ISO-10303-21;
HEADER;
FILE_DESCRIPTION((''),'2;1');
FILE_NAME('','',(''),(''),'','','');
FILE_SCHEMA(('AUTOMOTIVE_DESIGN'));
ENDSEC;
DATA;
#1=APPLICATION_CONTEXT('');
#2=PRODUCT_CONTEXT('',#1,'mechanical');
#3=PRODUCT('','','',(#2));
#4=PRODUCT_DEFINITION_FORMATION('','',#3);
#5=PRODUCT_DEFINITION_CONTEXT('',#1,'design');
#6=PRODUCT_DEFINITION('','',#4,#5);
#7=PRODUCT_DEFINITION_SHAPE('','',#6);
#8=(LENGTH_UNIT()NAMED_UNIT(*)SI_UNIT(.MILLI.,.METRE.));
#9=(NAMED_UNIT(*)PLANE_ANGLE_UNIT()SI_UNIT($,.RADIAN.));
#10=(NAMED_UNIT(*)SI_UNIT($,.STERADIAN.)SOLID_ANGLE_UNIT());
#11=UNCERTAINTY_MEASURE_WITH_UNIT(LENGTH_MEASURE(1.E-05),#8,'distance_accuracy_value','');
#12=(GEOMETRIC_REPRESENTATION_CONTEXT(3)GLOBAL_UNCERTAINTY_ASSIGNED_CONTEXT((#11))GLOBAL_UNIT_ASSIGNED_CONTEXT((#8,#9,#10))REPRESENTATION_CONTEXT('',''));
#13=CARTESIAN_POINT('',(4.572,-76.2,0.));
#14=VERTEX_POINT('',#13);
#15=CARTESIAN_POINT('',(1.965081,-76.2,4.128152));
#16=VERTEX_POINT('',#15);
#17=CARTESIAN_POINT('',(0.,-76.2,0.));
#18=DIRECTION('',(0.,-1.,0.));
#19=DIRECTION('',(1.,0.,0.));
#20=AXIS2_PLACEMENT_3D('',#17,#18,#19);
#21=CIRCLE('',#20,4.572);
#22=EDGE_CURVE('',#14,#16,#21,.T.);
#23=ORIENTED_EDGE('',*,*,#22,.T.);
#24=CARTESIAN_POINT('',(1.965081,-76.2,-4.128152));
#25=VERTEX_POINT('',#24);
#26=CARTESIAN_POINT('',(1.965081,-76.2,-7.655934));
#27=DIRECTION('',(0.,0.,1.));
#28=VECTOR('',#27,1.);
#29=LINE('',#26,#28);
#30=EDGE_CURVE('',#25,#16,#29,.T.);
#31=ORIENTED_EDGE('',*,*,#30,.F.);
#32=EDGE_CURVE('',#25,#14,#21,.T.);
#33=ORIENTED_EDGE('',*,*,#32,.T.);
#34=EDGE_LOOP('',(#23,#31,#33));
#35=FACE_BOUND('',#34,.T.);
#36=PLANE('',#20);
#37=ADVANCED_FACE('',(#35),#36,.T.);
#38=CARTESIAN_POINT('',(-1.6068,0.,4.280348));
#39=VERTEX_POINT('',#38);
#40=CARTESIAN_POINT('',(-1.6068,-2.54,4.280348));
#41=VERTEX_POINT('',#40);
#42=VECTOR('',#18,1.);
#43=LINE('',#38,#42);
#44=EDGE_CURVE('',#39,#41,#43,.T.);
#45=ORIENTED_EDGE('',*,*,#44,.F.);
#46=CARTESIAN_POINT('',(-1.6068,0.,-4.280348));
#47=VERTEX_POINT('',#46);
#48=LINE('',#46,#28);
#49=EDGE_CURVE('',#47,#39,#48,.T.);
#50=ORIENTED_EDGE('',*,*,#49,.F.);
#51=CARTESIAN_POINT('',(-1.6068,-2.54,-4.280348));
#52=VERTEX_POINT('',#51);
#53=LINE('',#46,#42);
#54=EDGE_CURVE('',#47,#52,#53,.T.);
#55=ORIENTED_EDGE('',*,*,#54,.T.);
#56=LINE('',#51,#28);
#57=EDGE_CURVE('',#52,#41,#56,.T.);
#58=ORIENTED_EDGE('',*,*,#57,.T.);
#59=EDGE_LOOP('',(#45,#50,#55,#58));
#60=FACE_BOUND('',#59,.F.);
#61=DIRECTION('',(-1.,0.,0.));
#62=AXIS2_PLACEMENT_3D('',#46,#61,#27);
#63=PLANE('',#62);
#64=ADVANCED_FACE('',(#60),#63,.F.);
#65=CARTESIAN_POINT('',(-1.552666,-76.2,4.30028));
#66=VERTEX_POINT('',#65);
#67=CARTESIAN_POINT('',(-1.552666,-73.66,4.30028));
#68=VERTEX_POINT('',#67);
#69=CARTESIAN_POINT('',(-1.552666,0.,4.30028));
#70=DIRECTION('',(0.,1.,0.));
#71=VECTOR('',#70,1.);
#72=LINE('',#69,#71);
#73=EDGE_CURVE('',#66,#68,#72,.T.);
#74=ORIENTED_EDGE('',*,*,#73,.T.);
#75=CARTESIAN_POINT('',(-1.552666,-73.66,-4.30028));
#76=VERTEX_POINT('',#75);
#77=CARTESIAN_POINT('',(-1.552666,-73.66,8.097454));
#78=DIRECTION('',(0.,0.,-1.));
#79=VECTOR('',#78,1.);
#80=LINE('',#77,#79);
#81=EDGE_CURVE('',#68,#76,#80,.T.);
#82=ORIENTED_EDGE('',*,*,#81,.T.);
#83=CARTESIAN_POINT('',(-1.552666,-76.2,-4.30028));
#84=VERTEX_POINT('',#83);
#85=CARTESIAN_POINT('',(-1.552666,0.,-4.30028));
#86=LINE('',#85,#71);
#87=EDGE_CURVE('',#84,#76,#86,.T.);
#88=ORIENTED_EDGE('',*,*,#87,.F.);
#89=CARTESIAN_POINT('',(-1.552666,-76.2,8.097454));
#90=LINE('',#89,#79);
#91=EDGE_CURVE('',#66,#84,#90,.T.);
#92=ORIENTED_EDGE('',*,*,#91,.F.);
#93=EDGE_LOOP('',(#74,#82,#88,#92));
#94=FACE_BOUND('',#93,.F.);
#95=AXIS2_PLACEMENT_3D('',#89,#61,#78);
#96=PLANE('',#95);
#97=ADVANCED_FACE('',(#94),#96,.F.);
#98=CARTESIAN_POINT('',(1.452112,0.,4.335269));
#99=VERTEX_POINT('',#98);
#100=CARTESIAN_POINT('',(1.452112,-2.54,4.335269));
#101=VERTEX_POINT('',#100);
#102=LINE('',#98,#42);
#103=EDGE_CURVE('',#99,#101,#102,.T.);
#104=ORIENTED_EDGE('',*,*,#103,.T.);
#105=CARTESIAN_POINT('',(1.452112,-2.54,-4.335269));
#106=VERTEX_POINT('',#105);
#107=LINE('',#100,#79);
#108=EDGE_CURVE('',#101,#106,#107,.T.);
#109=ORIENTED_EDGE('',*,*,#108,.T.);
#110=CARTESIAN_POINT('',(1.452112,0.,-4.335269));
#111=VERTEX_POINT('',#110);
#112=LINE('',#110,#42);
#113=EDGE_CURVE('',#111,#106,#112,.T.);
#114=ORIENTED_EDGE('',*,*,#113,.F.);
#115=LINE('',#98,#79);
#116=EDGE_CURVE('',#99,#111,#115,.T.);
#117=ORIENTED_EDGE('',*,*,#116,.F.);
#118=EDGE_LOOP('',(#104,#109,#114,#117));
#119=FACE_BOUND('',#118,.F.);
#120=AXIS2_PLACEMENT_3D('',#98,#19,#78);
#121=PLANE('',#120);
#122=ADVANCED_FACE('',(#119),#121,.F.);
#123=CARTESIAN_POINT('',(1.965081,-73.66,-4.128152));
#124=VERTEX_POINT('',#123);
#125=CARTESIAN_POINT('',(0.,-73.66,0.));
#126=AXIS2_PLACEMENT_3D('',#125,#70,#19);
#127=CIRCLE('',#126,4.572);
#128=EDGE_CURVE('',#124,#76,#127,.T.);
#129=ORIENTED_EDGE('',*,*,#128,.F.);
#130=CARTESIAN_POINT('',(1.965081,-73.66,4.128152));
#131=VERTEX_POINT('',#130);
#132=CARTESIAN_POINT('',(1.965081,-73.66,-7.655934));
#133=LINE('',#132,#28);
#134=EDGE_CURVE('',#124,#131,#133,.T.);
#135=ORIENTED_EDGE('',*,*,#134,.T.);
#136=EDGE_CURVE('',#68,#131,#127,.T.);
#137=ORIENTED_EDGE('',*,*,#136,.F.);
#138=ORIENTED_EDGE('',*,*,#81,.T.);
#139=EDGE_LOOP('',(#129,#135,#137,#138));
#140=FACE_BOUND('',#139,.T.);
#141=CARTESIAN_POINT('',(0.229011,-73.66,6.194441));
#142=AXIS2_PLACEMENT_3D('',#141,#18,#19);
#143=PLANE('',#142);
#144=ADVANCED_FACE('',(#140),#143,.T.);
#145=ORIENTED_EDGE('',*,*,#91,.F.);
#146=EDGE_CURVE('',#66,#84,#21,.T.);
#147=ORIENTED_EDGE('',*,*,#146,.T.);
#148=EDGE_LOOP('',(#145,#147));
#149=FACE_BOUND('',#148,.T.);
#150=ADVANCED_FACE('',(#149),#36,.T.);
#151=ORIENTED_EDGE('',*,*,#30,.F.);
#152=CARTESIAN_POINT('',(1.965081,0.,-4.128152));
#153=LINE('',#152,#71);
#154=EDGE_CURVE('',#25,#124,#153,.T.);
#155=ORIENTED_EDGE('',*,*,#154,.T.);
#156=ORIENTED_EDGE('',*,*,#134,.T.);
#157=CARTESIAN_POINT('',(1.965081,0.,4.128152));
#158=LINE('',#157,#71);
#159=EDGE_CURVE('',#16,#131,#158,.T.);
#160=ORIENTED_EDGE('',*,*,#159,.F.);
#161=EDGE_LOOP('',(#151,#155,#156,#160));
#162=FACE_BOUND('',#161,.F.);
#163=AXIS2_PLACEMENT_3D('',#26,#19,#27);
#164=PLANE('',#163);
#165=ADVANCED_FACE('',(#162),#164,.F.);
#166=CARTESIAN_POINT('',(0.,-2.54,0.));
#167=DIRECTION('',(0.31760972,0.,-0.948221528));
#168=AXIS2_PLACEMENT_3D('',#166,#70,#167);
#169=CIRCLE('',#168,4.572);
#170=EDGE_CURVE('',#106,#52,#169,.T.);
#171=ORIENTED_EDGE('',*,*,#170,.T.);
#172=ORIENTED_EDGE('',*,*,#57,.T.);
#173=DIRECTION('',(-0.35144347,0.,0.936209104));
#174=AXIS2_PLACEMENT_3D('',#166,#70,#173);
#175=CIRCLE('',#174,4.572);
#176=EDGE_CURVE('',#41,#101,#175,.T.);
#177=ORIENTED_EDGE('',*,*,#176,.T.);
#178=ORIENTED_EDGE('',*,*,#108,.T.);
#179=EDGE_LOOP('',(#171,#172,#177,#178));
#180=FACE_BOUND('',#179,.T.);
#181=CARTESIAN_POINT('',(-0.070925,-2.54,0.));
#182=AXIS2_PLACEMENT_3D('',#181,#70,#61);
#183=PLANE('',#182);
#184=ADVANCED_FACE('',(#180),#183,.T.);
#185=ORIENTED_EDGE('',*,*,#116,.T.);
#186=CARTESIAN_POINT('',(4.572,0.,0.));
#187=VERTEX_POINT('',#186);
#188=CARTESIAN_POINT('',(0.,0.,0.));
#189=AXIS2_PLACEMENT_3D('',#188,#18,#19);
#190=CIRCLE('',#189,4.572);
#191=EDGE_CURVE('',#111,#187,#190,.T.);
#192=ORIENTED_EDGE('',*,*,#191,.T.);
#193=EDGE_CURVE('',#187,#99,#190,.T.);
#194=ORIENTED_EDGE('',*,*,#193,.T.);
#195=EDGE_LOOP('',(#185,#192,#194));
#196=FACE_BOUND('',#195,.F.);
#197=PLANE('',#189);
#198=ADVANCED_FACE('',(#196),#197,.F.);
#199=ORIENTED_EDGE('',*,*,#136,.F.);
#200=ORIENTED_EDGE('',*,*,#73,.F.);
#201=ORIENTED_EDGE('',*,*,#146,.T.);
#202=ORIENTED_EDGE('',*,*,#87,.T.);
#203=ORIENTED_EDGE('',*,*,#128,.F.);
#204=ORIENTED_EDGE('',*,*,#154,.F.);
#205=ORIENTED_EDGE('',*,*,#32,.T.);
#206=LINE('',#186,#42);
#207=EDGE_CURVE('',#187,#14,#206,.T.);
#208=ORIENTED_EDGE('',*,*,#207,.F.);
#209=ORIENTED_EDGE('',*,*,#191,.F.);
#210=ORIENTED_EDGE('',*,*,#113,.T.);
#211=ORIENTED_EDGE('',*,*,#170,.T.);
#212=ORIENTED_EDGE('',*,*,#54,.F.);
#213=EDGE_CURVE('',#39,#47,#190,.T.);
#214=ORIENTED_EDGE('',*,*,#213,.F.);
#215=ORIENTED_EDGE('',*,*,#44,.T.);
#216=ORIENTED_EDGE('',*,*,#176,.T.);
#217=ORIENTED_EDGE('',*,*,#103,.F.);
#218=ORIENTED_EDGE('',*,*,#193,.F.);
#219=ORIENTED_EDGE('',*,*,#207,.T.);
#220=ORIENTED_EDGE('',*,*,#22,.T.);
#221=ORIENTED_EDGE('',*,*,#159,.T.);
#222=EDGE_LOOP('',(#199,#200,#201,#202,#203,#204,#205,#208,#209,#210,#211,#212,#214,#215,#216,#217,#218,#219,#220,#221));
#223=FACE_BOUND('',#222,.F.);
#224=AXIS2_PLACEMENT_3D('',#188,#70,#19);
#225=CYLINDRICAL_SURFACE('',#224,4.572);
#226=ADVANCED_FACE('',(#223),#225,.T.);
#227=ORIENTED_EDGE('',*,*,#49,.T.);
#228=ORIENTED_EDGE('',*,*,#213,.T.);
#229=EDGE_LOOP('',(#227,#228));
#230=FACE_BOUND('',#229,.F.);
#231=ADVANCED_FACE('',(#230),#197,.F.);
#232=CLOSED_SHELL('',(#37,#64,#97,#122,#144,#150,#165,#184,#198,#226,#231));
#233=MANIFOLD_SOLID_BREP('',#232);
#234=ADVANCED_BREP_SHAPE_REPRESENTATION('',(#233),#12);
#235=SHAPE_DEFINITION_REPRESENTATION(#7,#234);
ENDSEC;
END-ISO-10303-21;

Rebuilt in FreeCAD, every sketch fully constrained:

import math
import FreeCAD as App
import Part
import Sketcher
from FreeCAD import Vector
Q = App.Units.Quantity

doc = App.newDocument("Part")
body = doc.addObject("PartDesign::Body", "Body")

sketch1 = body.newObject("Sketcher::SketchObject", "Sketch")
sketch1.AttachmentSupport = (doc.getObject("XZ_Plane"), [""])
sketch1.MapMode = "FlatFace"
sketch1.addGeometry(Part.Circle(Vector(0, 0, 0), Vector(0, 0, 1), 4.572), False)
sketch1.addConstraint(Sketcher.Constraint("Coincident", 0, 3, -1, 1))
sketch1.addConstraint(Sketcher.Constraint("Diameter", 0, Q("0.36 in")))
pad1 = body.newObject("PartDesign::Pad", "Pad")
pad1.Profile = sketch1
pad1.Length = Q("3 in")

sketch2 = body.newObject("Sketcher::SketchObject", "Sketch001")
sketch2.AttachmentSupport = (doc.getObject("XZ_Plane"), [""])
sketch2.MapMode = "FlatFace"
sketch2.AttachmentOffset = App.Placement(Vector(0, 0, 3 * 25.4), App.Rotation())
sketch2.addGeometry(Part.LineSegment(Vector(1.965081, 8.097454, 0), Vector(-1.552666, 8.097454, 0)), False)
sketch2.addGeometry(Part.LineSegment(Vector(-1.552666, 8.097454, 0), Vector(-1.552666, -7.655934, 0)), False)
sketch2.addGeometry(Part.LineSegment(Vector(-1.552666, -7.655934, 0), Vector(1.965081, -7.655934, 0)), False)
sketch2.addGeometry(Part.LineSegment(Vector(1.965081, -7.655934, 0), Vector(1.965081, 8.097454, 0)), False)
sketch2.addConstraint(Sketcher.Constraint("Coincident", 0, 2, 1, 1))
sketch2.addConstraint(Sketcher.Constraint("Coincident", 1, 2, 2, 1))
sketch2.addConstraint(Sketcher.Constraint("Coincident", 2, 2, 3, 1))
sketch2.addConstraint(Sketcher.Constraint("Coincident", 3, 2, 0, 1))
sketch2.addConstraint(Sketcher.Constraint("Horizontal", 0))
sketch2.addConstraint(Sketcher.Constraint("Vertical", 1))
sketch2.addConstraint(Sketcher.Constraint("Horizontal", 2))
sketch2.addConstraint(Sketcher.Constraint("Vertical", 3))
sketch2.addConstraint(Sketcher.Constraint("DistanceX", 0, 2, 0, 1, Q("3.517747 mm")))
sketch2.addConstraint(Sketcher.Constraint("DistanceY", 1, 2, 1, 1, Q("15.753388 mm")))
sketch2.addConstraint(Sketcher.Constraint("DistanceX", -1, 1, 2, 2, Q("1.965081 mm")))
sketch2.addConstraint(Sketcher.Constraint("DistanceY", -1, 1, 0, 2, Q("8.097454 mm")))
pocket1 = body.newObject("PartDesign::Pocket", "Pocket")
pocket1.Profile = sketch2
pocket1.Length = Q("0.1 in")

sketch3 = body.newObject("Sketcher::SketchObject", "Sketch002")
sketch3.AttachmentSupport = (doc.getObject("XZ_Plane"), [""])
sketch3.MapMode = "FlatFace"
sketch3.addGeometry(Part.ArcOfCircle(Part.Circle(Vector(0, 0, 0), Vector(0, 0, 1), 4.572), math.radians(71.481568), math.radians(110.57563)), False)
sketch3.addGeometry(Part.LineSegment(Vector(1.452112, 4.335269, 0), Vector(1.452112, -4.335269, 0)), False)
sketch3.addGeometry(Part.ArcOfCircle(Part.Circle(Vector(0, 0, 0), Vector(0, 0, 1), 4.572), math.radians(-110.57563), math.radians(-71.481568)), False)
sketch3.addGeometry(Part.LineSegment(Vector(-1.6068, -4.280348, 0), Vector(-1.6068, 4.280348, 0)), False)
sketch3.addConstraint(Sketcher.Constraint("Coincident", 0, 1, 1, 1))
sketch3.addConstraint(Sketcher.Constraint("Coincident", 1, 2, 2, 2))
sketch3.addConstraint(Sketcher.Constraint("Coincident", 2, 1, 3, 1))
sketch3.addConstraint(Sketcher.Constraint("Coincident", 3, 2, 0, 2))
sketch3.addConstraint(Sketcher.Constraint("Vertical", 1))
sketch3.addConstraint(Sketcher.Constraint("Vertical", 3))
sketch3.addConstraint(Sketcher.Constraint("Coincident", 0, 3, -1, 1))
sketch3.addConstraint(Sketcher.Constraint("Coincident", 2, 3, -1, 1))
sketch3.addConstraint(Sketcher.Constraint("Equal", 0, 2))
sketch3.addConstraint(Sketcher.Constraint("Radius", 0, Q("0.18 in")))
sketch3.addConstraint(Sketcher.Constraint("DistanceX", 2, 1, -1, 1, Q("1.6068 mm")))
sketch3.addConstraint(Sketcher.Constraint("DistanceY", 1, 2, 1, 1, Q("8.670538 mm")))
pocket2 = body.newObject("PartDesign::Pocket", "Pocket001")
pocket2.Profile = sketch3
pocket2.Length = Q("0.1 in")
pocket2.Reversed = True

doc.recompute()
